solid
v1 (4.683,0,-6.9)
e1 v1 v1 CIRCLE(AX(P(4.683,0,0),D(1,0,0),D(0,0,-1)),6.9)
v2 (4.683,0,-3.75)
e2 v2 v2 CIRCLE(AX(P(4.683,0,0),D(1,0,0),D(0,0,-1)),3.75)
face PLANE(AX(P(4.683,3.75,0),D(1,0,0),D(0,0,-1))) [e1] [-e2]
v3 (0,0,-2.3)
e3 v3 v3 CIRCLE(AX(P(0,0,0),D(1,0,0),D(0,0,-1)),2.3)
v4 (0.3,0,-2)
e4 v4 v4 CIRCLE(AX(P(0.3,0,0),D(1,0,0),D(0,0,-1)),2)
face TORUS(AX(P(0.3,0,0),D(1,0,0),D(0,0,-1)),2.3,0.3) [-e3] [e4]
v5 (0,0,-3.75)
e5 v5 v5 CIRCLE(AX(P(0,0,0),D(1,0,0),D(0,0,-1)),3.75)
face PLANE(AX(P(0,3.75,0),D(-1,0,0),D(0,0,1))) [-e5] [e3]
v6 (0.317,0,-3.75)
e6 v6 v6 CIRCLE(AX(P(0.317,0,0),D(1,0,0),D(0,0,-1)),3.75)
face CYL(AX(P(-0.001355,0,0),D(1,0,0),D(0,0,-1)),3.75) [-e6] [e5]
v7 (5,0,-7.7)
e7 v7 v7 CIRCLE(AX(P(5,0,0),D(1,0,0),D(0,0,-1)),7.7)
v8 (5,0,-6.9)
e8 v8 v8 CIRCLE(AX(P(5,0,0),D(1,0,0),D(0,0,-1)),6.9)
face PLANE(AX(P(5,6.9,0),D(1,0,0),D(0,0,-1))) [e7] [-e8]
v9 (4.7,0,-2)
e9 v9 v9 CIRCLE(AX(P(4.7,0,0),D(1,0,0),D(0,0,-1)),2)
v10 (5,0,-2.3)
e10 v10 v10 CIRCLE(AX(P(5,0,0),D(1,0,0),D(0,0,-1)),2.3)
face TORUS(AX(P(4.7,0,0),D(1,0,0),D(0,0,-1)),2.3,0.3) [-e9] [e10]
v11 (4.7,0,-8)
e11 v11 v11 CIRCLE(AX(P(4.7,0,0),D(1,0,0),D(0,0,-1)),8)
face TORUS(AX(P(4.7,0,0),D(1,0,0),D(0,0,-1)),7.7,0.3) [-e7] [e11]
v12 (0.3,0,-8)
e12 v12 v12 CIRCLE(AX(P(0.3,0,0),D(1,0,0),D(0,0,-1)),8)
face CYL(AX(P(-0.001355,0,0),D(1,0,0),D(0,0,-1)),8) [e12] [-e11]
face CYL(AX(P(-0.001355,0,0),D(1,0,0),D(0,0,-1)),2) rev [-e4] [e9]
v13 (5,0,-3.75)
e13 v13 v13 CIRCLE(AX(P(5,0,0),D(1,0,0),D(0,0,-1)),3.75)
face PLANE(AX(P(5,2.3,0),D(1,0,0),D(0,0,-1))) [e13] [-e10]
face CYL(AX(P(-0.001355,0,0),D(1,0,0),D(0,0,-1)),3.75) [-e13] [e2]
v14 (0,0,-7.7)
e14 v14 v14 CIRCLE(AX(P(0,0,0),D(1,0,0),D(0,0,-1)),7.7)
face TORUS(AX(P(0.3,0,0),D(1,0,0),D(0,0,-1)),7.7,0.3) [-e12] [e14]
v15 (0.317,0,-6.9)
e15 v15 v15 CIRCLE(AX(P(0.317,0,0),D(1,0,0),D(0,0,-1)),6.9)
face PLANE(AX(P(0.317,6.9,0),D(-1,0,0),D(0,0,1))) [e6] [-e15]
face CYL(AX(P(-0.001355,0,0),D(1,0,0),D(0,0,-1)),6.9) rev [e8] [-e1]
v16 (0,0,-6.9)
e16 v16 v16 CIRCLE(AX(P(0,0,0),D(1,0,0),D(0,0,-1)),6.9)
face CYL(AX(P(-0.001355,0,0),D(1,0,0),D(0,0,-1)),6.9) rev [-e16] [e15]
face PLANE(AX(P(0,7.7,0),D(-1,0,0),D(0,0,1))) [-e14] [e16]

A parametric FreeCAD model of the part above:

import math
import FreeCAD as App
import Part
import Sketcher
from FreeCAD import Vector

doc = App.newDocument("Part")
body = doc.addObject("PartDesign::Body", "Body")

sketch1 = doc.addObject("Sketcher::SketchObject", "Sketch")
body.addObject(sketch1)
sketch1.AttachmentSupport = (doc.XY_Plane, [""])
sketch1.MapMode = "FlatFace"
sketch1.addGeometry([
    Part.LineSegment(Vector(0, 3.75, 0), Vector(0, 2.3, 0)),
    Part.ArcOfCircle(Part.Circle(Vector(0.3, 2.3, 0), Vector(0, 0, 1), 0.3), math.radians(-180), math.radians(-90)),
    Part.LineSegment(Vector(0.3, 2, 0), Vector(4.7, 2, 0)),
    Part.ArcOfCircle(Part.Circle(Vector(4.7, 2.3, 0), Vector(0, 0, 1), 0.3), math.radians(-90), math.radians(0)),
    Part.LineSegment(Vector(5, 2.3, 0), Vector(5, 3.75, 0)),
    Part.LineSegment(Vector(5, 3.75, 0), Vector(4.68, 3.75, 0)),
    Part.LineSegment(Vector(4.68, 3.75, 0), Vector(4.68, 6.9, 0)),
    Part.LineSegment(Vector(4.68, 6.9, 0), Vector(5, 6.9, 0)),
    Part.LineSegment(Vector(5, 6.9, 0), Vector(5, 7.7, 0)),
    Part.ArcOfCircle(Part.Circle(Vector(4.7, 7.7, 0), Vector(0, 0, 1), 0.3), math.radians(0), math.radians(90)),
    Part.LineSegment(Vector(4.7, 8, 0), Vector(0.3, 8, 0)),
    Part.ArcOfCircle(Part.Circle(Vector(0.3, 7.7, 0), Vector(0, 0, 1), 0.3), math.radians(90), math.radians(180)),
    Part.LineSegment(Vector(0, 7.7, 0), Vector(0, 6.9, 0)),
    Part.LineSegment(Vector(0, 6.9, 0), Vector(0.32, 6.9, 0)),
    Part.LineSegment(Vector(0.32, 6.9, 0), Vector(0.32, 3.75, 0)),
    Part.LineSegment(Vector(0.32, 3.75, 0), Vector(0, 3.75, 0)),
], False)
sketch1.addConstraint([
    Sketcher.Constraint("Tangent", 0, 2, 1, 1),
    Sketcher.Constraint("Tangent", 1, 2, 2, 1),
    Sketcher.Constraint("Tangent", 2, 2, 3, 1),
    Sketcher.Constraint("Tangent", 3, 2, 4, 1),
    Sketcher.Constraint("Coincident", 4, 2, 5, 1),
    Sketcher.Constraint("Coincident", 5, 2, 6, 1),
    Sketcher.Constraint("Coincident", 6, 2, 7, 1),
    Sketcher.Constraint("Coincident", 7, 2, 8, 1),
    Sketcher.Constraint("Tangent", 8, 2, 9, 1),
    Sketcher.Constraint("Tangent", 9, 2, 10, 1),
    Sketcher.Constraint("Tangent", 10, 2, 11, 1),
    Sketcher.Constraint("Tangent", 11, 2, 12, 1),
    Sketcher.Constraint("Coincident", 12, 2, 13, 1),
    Sketcher.Constraint("Coincident", 13, 2, 14, 1),
    Sketcher.Constraint("Coincident", 14, 2, 15, 1),
    Sketcher.Constraint("Coincident", 15, 2, 0, 1),
    Sketcher.Constraint("Vertical", 0),
    Sketcher.Constraint("Horizontal", 2),
    Sketcher.Constraint("Vertical", 4),
    Sketcher.Constraint("Horizontal", 5),
    Sketcher.Constraint("Vertical", 6),
    Sketcher.Constraint("Horizontal", 7),
    Sketcher.Constraint("Vertical", 8),
    Sketcher.Constraint("Horizontal", 10),
    Sketcher.Constraint("Vertical", 12),
    Sketcher.Constraint("Horizontal", 13),
    Sketcher.Constraint("Vertical", 14),
    Sketcher.Constraint("Horizontal", 15),
    Sketcher.Constraint("Equal", 1, 3),
    Sketcher.Constraint("Equal", 3, 9),
    Sketcher.Constraint("Equal", 9, 11),
    Sketcher.Constraint("PointOnObject", 0, 2, -2),
    Sketcher.Constraint("PointOnObject", 11, 2, -2),
    Sketcher.Constraint("Horizontal", 7, 2, 12, 2),
    Sketcher.Constraint("Horizontal", 5, 2, 14, 2),
    Sketcher.Constraint("Vertical", 3, 3, 9, 3),
    Sketcher.Constraint("Equal", 7, 13),
    Sketcher.Constraint("Radius", 1, 0.3),
    Sketcher.Constraint("DistanceX", 2, 1, 2, 2, 4.4),
    Sketcher.Constraint("DistanceY", 8, 1, 8, 2, 0.8),
    Sketcher.Constraint("DistanceY", -1, 1, 1, 2, 2.0),
    Sketcher.Constraint("DistanceY", -1, 1, 9, 2, 8.0),
    Sketcher.Constraint("DistanceY", 0, 2, 0, 1, 1.45),
    Sketcher.Constraint("DistanceX", 5, 2, 5, 1, 0.317),
])
revolution = doc.addObject("PartDesign::Revolution", "Revolution")
body.addObject(revolution)
revolution.Profile = sketch1
revolution.ReferenceAxis = (sketch1, ["H_Axis"])
revolution.Angle = 360

doc.recompute()
